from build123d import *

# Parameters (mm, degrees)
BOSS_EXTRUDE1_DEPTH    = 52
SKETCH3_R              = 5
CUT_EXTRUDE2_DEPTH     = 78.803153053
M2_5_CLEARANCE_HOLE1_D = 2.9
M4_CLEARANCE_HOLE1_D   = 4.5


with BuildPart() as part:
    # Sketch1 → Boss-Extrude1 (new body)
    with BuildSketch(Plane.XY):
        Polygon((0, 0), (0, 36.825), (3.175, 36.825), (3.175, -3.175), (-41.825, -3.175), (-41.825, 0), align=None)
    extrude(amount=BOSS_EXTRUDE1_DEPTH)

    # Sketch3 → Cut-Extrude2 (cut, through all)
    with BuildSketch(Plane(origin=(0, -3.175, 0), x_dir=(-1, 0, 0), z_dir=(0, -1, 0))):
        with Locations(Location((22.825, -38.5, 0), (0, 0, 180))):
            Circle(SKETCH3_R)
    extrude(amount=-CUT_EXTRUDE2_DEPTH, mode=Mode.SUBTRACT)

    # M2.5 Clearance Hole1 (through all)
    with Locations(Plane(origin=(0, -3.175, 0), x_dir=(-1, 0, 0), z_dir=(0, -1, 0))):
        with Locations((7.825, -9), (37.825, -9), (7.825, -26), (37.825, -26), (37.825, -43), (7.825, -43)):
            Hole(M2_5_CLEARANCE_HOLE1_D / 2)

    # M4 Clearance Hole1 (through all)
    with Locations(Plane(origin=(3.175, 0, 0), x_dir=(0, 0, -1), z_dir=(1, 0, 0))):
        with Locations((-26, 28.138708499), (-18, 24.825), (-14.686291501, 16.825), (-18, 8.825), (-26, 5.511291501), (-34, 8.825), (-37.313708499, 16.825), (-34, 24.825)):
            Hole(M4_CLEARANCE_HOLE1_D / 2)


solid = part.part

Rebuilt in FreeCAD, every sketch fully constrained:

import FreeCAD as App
import Part
import Sketcher

doc = App.newDocument("Part")
body = doc.addObject("PartDesign::Body", "Body")

sketch1 = body.newObject("Sketcher::SketchObject", "Sketch")
sketch1.AttachmentSupport = (doc.getObject("XY_Plane"), [""])
sketch1.MapMode = "FlatFace"
sketch1.addGeometry([
    Part.LineSegment(App.Vector(0, 36.8, 0), App.Vector(0, 0, 0)),
    Part.LineSegment(App.Vector(0, 0, 0), App.Vector(-41.8, 0, 0)),
    Part.LineSegment(App.Vector(-41.8, 0, 0), App.Vector(-41.8, -3.2, 0)),
    Part.LineSegment(App.Vector(-41.8, -3.2, 0), App.Vector(3.2, -3.2, 0)),
    Part.LineSegment(App.Vector(3.2, -3.2, 0), App.Vector(3.2, 36.8, 0)),
    Part.LineSegment(App.Vector(3.2, 36.8, 0), App.Vector(0, 36.8, 0)),
], False)
sketch1.addConstraint([
    Sketcher.Constraint("Coincident", 0, 2, 1, 1),
    Sketcher.Constraint("Coincident", 1, 2, 2, 1),
    Sketcher.Constraint("Coincident", 2, 2, 3, 1),
    Sketcher.Constraint("Coincident", 3, 2, 4, 1),
    Sketcher.Constraint("Coincident", 4, 2, 5, 1),
    Sketcher.Constraint("Coincident", 5, 2, 0, 1),
    Sketcher.Constraint("Vertical", 0),
    Sketcher.Constraint("Horizontal", 1),
    Sketcher.Constraint("Vertical", 2),
    Sketcher.Constraint("Horizontal", 3),
    Sketcher.Constraint("Vertical", 4),
    Sketcher.Constraint("Horizontal", 5),
    Sketcher.Constraint("Coincident", 0, 2, -1, 1),
    Sketcher.Constraint("Equal", 5, 2),
    Sketcher.Constraint("DistanceX", 3, 1, 3, 2, 45.0),
    Sketcher.Constraint("DistanceY", 4, 1, 4, 2, 40.0),
    Sketcher.Constraint("DistanceX", 1, 2, 1, 1, 41.825),
])
pad1 = body.newObject("PartDesign::Pad", "Pad")
pad1.Profile = sketch1
pad1.Length = 52

sketch2 = body.newObject("Sketcher::SketchObject", "Sketch001")
sketch2.AttachmentSupport = (doc.getObject("XZ_Plane"), [""])
sketch2.MapMode = "FlatFace"
sketch2.AttachmentOffset = App.Placement(App.Vector(0, 0, 3.175), App.Rotation())
sketch2.addGeometry(Part.Circle(App.Vector(-23, 38, 0), App.Vector(0, 0, 1), 5), False)
sketch2.addConstraint([
    Sketcher.Constraint("Diameter", 0, 10.0),
    Sketcher.Constraint("DistanceY", -1, 1, 0, 3, 38.5),
    Sketcher.Constraint("DistanceX", 0, 3, -1, 1, 22.825),
])
pocket1 = body.newObject("PartDesign::Pocket", "Pocket")
pocket1.Profile = sketch2
pocket1.Type = "ThroughAll"

sketch3 = body.newObject("Sketcher::SketchObject", "Sketch002")
sketch3.AttachmentSupport = (doc.getObject("XZ_Plane"), [""])
sketch3.MapMode = "FlatFace"
sketch3.AttachmentOffset = App.Placement(App.Vector(0, 0, 3.175), App.Rotation())
sketch3.addGeometry([
    Part.Circle(App.Vector(-7.8, 9, 0), App.Vector(0, 0, 1), 1.4),
    Part.Circle(App.Vector(-37.8, 9, 0), App.Vector(0, 0, 1), 1.4),
    Part.Circle(App.Vector(-7.8, 26, 0), App.Vector(0, 0, 1), 1.4),
    Part.Circle(App.Vector(-37.8, 26, 0), App.Vector(0, 0, 1), 1.4),
    Part.Circle(App.Vector(-37.8, 43, 0), App.Vector(0, 0, 1), 1.4),
    Part.Circle(App.Vector(-7.8, 43, 0), App.Vector(0, 0, 1), 1.4),
], False)
sketch3.addConstraint([
    Sketcher.Constraint("Equal", 0, 1),
    Sketcher.Constraint("Equal", 1, 2),
    Sketcher.Constraint("Equal", 2, 3),
    Sketcher.Constraint("Equal", 3, 4),
    Sketcher.Constraint("Equal", 4, 5),
    Sketcher.Constraint("Horizontal", 0, 3, 1, 3),
    Sketcher.Constraint("Horizontal", 2, 3, 3, 3),
    Sketcher.Constraint("Horizontal", 4, 3, 5, 3),
    Sketcher.Constraint("Vertical", 0, 3, 2, 3),
    Sketcher.Constraint("Vertical", 1, 3, 3, 3),
    Sketcher.Constraint("Vertical", 3, 3, 4, 3),
    Sketcher.Constraint("Vertical", 2, 3, 5, 3),
    Sketcher.Constraint("Diameter", 0, 2.9),
    Sketcher.Constraint("DistanceY", -1, 1, 0, 3, 9.0),
    Sketcher.Constraint("DistanceY", -1, 1, 2, 3, 26.0),
    Sketcher.Constraint("DistanceY", -1, 1, 4, 3, 43.0),
    Sketcher.Constraint("DistanceX", 1, 3, 0, 3, 30.0),
    Sketcher.Constraint("DistanceX", 0, 3, -1, 1, 7.825),
])
doc.recompute()
hole = body.newObject("PartDesign::Hole", "Hole")
hole.Profile = sketch3
hole.ThreadType = "None"
hole.Diameter = 2.9
hole.DepthType = "ThroughAll"

sketch4 = body.newObject("Sketcher::SketchObject", "Sketch003")
sketch4.AttachmentSupport = (doc.getObject("YZ_Plane"), [""])
sketch4.MapMode = "FlatFace"
sketch4.AttachmentOffset = App.Placement(App.Vector(0, 0, 3.175), App.Rotation())
sketch4.addGeometry([
    Part.Circle(App.Vector(28.1, 26, 0), App.Vector(0, 0, 1), 2.2),
    Part.Circle(App.Vector(24.8, 18, 0), App.Vector(0, 0, 1), 2.2),
    Part.Circle(App.Vector(16.8, 14.7, 0), App.Vector(0, 0, 1), 2.2),
    Part.Circle(App.Vector(8.8, 18, 0), App.Vector(0, 0, 1), 2.2),
    Part.Circle(App.Vector(5.5, 26, 0), App.Vector(0, 0, 1), 2.2),
    Part.Circle(App.Vector(8.8, 34, 0), App.Vector(0, 0, 1), 2.2),
    Part.Circle(App.Vector(16.8, 37.3, 0), App.Vector(0, 0, 1), 2.2),
    Part.Circle(App.Vector(24.8, 34, 0), App.Vector(0, 0, 1), 2.2),
], False)
sketch4.addConstraint([
    Sketcher.Constraint("Equal", 0, 1),
    Sketcher.Constraint("Equal", 1, 2),
    Sketcher.Constraint("Equal", 2, 3),
    Sketcher.Constraint("Equal", 3, 4),
    Sketcher.Constraint("Equal", 4, 5),
    Sketcher.Constraint("Equal", 5, 6),
    Sketcher.Constraint("Equal", 6, 7),
    Sketcher.Constraint("Horizontal", 1, 3, 3, 3),
    Sketcher.Constraint("Horizontal", 0, 3, 4, 3),
    Sketcher.Constraint("Horizontal", 5, 3, 7, 3),
    Sketcher.Constraint("Vertical", 3, 3, 5, 3),
    Sketcher.Constraint("Vertical", 2, 3, 6, 3),
    Sketcher.Constraint("Vertical", 1, 3, 7, 3),
    Sketcher.Constraint("Diameter", 0, 4.5),
    Sketcher.Constraint("DistanceY", -1, 1, 0, 3, 26.0),
    Sketcher.Constraint("DistanceY", -1, 1, 1, 3, 18.0),
    Sketcher.Constraint("DistanceY", -1, 1, 5, 3, 34.0),
    Sketcher.Constraint("DistanceX", 2, 3, 1, 3, 8.0),
    Sketcher.Constraint("DistanceX", 3, 3, 2, 3, 8.0),
    Sketcher.Constraint("DistanceX", -1, 1, 1, 3, 24.825),
    Sketcher.Constraint("DistanceX", -1, 1, 0, 3, 28.138708),
    Sketcher.Constraint("DistanceY", -1, 1, 2, 3, 14.686292),
    Sketcher.Constraint("DistanceX", -1, 1, 4, 3, 5.511292),
    Sketcher.Constraint("DistanceY", -1, 1, 6, 3, 37.313708),
])
doc.recompute()
hole2 = body.newObject("PartDesign::Hole", "Hole001")
hole2.Profile = sketch4
hole2.ThreadType = "None"
hole2.Diameter = 4.5
hole2.DepthType = "ThroughAll"

doc.recompute()
